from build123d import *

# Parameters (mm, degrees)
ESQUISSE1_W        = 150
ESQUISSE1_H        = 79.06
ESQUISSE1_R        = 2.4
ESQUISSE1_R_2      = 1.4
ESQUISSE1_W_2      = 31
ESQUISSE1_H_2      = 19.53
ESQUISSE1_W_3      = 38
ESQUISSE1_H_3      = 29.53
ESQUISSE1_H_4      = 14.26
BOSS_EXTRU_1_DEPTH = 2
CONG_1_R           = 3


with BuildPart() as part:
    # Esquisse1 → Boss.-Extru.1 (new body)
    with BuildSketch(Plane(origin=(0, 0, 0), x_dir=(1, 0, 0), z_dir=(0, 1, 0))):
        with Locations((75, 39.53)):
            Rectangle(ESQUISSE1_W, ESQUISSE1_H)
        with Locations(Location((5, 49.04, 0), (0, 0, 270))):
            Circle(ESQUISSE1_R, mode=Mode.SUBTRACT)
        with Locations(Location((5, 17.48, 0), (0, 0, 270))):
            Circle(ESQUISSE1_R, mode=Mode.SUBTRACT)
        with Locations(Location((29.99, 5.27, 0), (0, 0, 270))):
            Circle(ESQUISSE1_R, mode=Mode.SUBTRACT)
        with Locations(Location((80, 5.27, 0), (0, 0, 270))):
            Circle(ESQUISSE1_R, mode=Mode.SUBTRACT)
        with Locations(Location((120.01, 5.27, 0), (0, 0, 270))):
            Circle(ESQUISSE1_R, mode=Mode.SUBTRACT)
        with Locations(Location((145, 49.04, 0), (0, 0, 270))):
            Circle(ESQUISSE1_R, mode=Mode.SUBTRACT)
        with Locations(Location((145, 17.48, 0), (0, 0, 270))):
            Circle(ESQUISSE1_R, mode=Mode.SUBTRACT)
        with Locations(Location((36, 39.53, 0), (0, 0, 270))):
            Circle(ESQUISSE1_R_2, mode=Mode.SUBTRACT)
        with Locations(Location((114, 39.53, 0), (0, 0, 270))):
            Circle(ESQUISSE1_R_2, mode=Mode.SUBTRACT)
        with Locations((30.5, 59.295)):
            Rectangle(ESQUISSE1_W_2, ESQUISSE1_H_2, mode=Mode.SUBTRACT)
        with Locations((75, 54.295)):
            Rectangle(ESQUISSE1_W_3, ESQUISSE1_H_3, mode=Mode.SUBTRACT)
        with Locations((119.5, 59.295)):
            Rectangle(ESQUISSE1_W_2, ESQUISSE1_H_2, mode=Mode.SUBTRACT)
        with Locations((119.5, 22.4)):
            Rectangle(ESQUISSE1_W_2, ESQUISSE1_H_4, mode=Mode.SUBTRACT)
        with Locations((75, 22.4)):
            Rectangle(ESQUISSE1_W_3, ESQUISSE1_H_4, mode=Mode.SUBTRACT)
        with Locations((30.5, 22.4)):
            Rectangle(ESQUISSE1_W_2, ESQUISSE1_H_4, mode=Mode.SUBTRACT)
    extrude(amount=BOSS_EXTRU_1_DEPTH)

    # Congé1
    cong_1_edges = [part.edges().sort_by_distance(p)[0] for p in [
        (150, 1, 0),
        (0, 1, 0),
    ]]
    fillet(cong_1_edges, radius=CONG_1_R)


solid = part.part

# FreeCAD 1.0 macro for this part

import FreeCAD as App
import Part
import Sketcher
from FreeCAD import Vector


def edges_at(feature, points):
    """Names of the edges that pass closest to the given points."""
    edges = feature.Shape.Edges
    near = lambda p: min(range(len(edges)), key=lambda i: edges[i].distToShape(Part.Vertex(*p))[0])
    return sorted({f"Edge{near(p) + 1}" for p in points})


def add_polygon(sketch, points):
    """Adds a closed chain of lines whose ends are joined by coincident constraints."""
    first, n = sketch.GeometryCount, len(points)
    for a, b in zip(points, points[1:] + points[:1]):
        sketch.addGeometry(Part.LineSegment(App.Vector(*a, 0), App.Vector(*b, 0)), False)
    for i in range(n):
        sketch.addConstraint(Sketcher.Constraint("Coincident", first + i, 2, first + (i + 1) % n, 1))

doc = App.newDocument("Part")
body = doc.addObject("PartDesign::Body", "Body")

# Sketch on XZ plane
sketch1 = body.newObject("Sketcher::SketchObject", "Sketch")
sketch1.AttachmentSupport = (doc.getObject("XZ_Plane"), [""])
sketch1.MapMode = "FlatFace"
add_polygon(sketch1, [(0, -79.1), (0, 0), (150, 0), (150, -79.1)])  # lines 0-3
sketch1.addGeometry(Part.Circle(Vector(30, -5.3, 0), Vector(0, 0, 1), 2.4), False)  # 4
sketch1.addGeometry(Part.Circle(Vector(5, -17.5, 0), Vector(0, 0, 1), 2.4), False)  # 5
add_polygon(sketch1, [(46, -15.3), (15, -15.3), (15, -29.5), (46, -29.5)])  # lines 6-9
sketch1.addGeometry(Part.Circle(Vector(80, -5.3, 0), Vector(0, 0, 1), 2.4), False)  # 10
sketch1.addGeometry(Part.Circle(Vector(120, -5.3, 0), Vector(0, 0, 1), 2.4), False)  # 11
sketch1.addGeometry(Part.Circle(Vector(145, -17.5, 0), Vector(0, 0, 1), 2.4), False)  # 12
add_polygon(sketch1, [(94, -15.3), (56, -15.3), (56, -29.5), (94, -29.5)])  # lines 13-16
add_polygon(sketch1, [(135, -15.3), (104, -15.3), (104, -29.5), (135, -29.5)])  # lines 17-20
sketch1.addGeometry(Part.Circle(Vector(36, -39.5, 0), Vector(0, 0, 1), 1.4), False)  # 21
sketch1.addGeometry(Part.Circle(Vector(5, -49, 0), Vector(0, 0, 1), 2.4), False)  # 22
add_polygon(sketch1, [(46, -49.5), (15, -49.5), (15, -69.1), (46, -69.1)])  # lines 23-26
sketch1.addGeometry(Part.Circle(Vector(114, -39.5, 0), Vector(0, 0, 1), 1.4), False)  # 27
sketch1.addGeometry(Part.Circle(Vector(145, -49, 0), Vector(0, 0, 1), 2.4), False)  # 28
add_polygon(sketch1, [(94, -39.5), (56, -39.5), (56, -69.1), (94, -69.1)])  # lines 29-32
add_polygon(sketch1, [(135, -49.5), (104, -49.5), (104, -69.1), (135, -69.1)])  # lines 33-36
sketch1.addConstraint([
    Sketcher.Constraint("Vertical", 0),
    Sketcher.Constraint("Horizontal", 1),
    Sketcher.Constraint("Vertical", 2),
    Sketcher.Constraint("Horizontal", 3),
    Sketcher.Constraint("Horizontal", 6),
    Sketcher.Constraint("Vertical", 7),
    Sketcher.Constraint("Horizontal", 8),
    Sketcher.Constraint("Vertical", 9),
    Sketcher.Constraint("Horizontal", 13),
    Sketcher.Constraint("Vertical", 14),
    Sketcher.Constraint("Horizontal", 15),
    Sketcher.Constraint("Vertical", 16),
    Sketcher.Constraint("Horizontal", 17),
    Sketcher.Constraint("Vertical", 18),
    Sketcher.Constraint("Horizontal", 19),
    Sketcher.Constraint("Vertical", 20),
    Sketcher.Constraint("Horizontal", 23),
    Sketcher.Constraint("Vertical", 24),
    Sketcher.Constraint("Horizontal", 25),
    Sketcher.Constraint("Vertical", 26),
    Sketcher.Constraint("Horizontal", 29),
    Sketcher.Constraint("Vertical", 30),
    Sketcher.Constraint("Horizontal", 31),
    Sketcher.Constraint("Vertical", 32),
    Sketcher.Constraint("Horizontal", 33),
    Sketcher.Constraint("Vertical", 34),
    Sketcher.Constraint("Horizontal", 35),
    Sketcher.Constraint("Vertical", 36),
    Sketcher.Constraint("Coincident", 0, 2, -1, 1),
    Sketcher.Constraint("Equal", 4, 5),
    Sketcher.Constraint("Equal", 5, 10),
    Sketcher.Constraint("Equal", 10, 11),
    Sketcher.Constraint("Equal", 11, 12),
    Sketcher.Constraint("Equal", 12, 22),
    Sketcher.Constraint("Equal", 21, 27),
    Sketcher.Constraint("Equal", 22, 28),
    Sketcher.Constraint("Horizontal", 4, 3, 10, 3),
    Sketcher.Constraint("Horizontal", 10, 3, 11, 3),
    Sketcher.Constraint("Horizontal", 5, 3, 12, 3),
    Sketcher.Constraint("Horizontal", 21, 3, 27, 3),
    Sketcher.Constraint("Horizontal", 22, 3, 28, 3),
    Sketcher.Constraint("Horizontal", 9, 2, 13, 2),
    Sketcher.Constraint("Horizontal", 8, 2, 14, 2),
    Sketcher.Constraint("Horizontal", 16, 2, 17, 2),
    Sketcher.Constraint("Horizontal", 15, 2, 18, 2),
    Sketcher.Constraint("Horizontal", 27, 3, 29, 2),
    Sketcher.Constraint("Horizontal", 25, 2, 30, 2),
    Sketcher.Constraint("Horizontal", 26, 2, 33, 2),
    Sketcher.Constraint("Horizontal", 31, 2, 34, 2),
    Sketcher.Constraint("Vertical", 5, 3, 22, 3),
    Sketcher.Constraint("Vertical", 12, 3, 28, 3),
    Sketcher.Constraint("Vertical", 7, 2, 23, 2),
    Sketcher.Constraint("Vertical", 9, 2, 25, 2),
    Sketcher.Constraint("Vertical", 14, 2, 29, 2),
    Sketcher.Constraint("Vertical", 16, 2, 31, 2),
    Sketcher.Constraint("Vertical", 18, 2, 33, 2),
    Sketcher.Constraint("Vertical", 20, 2, 35, 2),
    Sketcher.Constraint("Equal", 8, 17),
    Sketcher.Constraint("Diameter", 4, 4.8),
    Sketcher.Constraint("Diameter", 21, 2.8),
    Sketcher.Constraint("DistanceX", 1, 1, 1, 2, 150.0),
    Sketcher.Constraint("DistanceX", 6, 2, 6, 1, 31.0),
    Sketcher.Constraint("DistanceX", 13, 2, 13, 1, 38.0),
    Sketcher.Constraint("DistanceX", -1, 1, 5, 3, 5.0),
    Sketcher.Constraint("DistanceX", -1, 1, 10, 3, 80.0),
    Sketcher.Constraint("DistanceX", -1, 1, 12, 3, 145.0),
    Sketcher.Constraint("DistanceX", -1, 1, 21, 3, 36.0),
    Sketcher.Constraint("DistanceX", -1, 1, 27, 3, 114.0),
    Sketcher.Constraint("DistanceX", -1, 1, 6, 2, 15.0),
    Sketcher.Constraint("DistanceX", -1, 1, 13, 2, 56.0),
    Sketcher.Constraint("DistanceX", -1, 1, 17, 2, 104.0),
    Sketcher.Constraint("DistanceY", 6, 2, 4, 3, 10.0),
    Sketcher.Constraint("DistanceY", 21, 3, 7, 2, 10.0),
    Sketcher.Constraint("DistanceY", 23, 2, 7, 2, 20.0),
    Sketcher.Constraint("DistanceY", 3, 2, 24, 2, 10.0),
    Sketcher.Constraint("DistanceY", 0, 1, 0, 2, 79.06),
    Sketcher.Constraint("DistanceY", 7, 2, 7, 1, 14.26),
    Sketcher.Constraint("DistanceY", 24, 2, 24, 1, 19.53),
    Sketcher.Constraint("DistanceX", -1, 1, 4, 3, 29.99),
    Sketcher.Constraint("DistanceY", 5, 3, -1, 1, 17.48),
    Sketcher.Constraint("DistanceX", -1, 1, 11, 3, 120.01),
    Sketcher.Constraint("DistanceY", 22, 3, -1, 1, 49.04),
])
pad1 = body.newObject("PartDesign::Pad", "Pad")
pad1.Profile = sketch1
pad1.Length = 2
pad1.Reversed = True
doc.recompute()

fillet = body.newObject("PartDesign::Fillet", "Fillet")
fillet.Base = (pad1, edges_at(pad1, [(150, 1, 0), (0, 1, 0)]))
fillet.Radius = 3

doc.recompute()
